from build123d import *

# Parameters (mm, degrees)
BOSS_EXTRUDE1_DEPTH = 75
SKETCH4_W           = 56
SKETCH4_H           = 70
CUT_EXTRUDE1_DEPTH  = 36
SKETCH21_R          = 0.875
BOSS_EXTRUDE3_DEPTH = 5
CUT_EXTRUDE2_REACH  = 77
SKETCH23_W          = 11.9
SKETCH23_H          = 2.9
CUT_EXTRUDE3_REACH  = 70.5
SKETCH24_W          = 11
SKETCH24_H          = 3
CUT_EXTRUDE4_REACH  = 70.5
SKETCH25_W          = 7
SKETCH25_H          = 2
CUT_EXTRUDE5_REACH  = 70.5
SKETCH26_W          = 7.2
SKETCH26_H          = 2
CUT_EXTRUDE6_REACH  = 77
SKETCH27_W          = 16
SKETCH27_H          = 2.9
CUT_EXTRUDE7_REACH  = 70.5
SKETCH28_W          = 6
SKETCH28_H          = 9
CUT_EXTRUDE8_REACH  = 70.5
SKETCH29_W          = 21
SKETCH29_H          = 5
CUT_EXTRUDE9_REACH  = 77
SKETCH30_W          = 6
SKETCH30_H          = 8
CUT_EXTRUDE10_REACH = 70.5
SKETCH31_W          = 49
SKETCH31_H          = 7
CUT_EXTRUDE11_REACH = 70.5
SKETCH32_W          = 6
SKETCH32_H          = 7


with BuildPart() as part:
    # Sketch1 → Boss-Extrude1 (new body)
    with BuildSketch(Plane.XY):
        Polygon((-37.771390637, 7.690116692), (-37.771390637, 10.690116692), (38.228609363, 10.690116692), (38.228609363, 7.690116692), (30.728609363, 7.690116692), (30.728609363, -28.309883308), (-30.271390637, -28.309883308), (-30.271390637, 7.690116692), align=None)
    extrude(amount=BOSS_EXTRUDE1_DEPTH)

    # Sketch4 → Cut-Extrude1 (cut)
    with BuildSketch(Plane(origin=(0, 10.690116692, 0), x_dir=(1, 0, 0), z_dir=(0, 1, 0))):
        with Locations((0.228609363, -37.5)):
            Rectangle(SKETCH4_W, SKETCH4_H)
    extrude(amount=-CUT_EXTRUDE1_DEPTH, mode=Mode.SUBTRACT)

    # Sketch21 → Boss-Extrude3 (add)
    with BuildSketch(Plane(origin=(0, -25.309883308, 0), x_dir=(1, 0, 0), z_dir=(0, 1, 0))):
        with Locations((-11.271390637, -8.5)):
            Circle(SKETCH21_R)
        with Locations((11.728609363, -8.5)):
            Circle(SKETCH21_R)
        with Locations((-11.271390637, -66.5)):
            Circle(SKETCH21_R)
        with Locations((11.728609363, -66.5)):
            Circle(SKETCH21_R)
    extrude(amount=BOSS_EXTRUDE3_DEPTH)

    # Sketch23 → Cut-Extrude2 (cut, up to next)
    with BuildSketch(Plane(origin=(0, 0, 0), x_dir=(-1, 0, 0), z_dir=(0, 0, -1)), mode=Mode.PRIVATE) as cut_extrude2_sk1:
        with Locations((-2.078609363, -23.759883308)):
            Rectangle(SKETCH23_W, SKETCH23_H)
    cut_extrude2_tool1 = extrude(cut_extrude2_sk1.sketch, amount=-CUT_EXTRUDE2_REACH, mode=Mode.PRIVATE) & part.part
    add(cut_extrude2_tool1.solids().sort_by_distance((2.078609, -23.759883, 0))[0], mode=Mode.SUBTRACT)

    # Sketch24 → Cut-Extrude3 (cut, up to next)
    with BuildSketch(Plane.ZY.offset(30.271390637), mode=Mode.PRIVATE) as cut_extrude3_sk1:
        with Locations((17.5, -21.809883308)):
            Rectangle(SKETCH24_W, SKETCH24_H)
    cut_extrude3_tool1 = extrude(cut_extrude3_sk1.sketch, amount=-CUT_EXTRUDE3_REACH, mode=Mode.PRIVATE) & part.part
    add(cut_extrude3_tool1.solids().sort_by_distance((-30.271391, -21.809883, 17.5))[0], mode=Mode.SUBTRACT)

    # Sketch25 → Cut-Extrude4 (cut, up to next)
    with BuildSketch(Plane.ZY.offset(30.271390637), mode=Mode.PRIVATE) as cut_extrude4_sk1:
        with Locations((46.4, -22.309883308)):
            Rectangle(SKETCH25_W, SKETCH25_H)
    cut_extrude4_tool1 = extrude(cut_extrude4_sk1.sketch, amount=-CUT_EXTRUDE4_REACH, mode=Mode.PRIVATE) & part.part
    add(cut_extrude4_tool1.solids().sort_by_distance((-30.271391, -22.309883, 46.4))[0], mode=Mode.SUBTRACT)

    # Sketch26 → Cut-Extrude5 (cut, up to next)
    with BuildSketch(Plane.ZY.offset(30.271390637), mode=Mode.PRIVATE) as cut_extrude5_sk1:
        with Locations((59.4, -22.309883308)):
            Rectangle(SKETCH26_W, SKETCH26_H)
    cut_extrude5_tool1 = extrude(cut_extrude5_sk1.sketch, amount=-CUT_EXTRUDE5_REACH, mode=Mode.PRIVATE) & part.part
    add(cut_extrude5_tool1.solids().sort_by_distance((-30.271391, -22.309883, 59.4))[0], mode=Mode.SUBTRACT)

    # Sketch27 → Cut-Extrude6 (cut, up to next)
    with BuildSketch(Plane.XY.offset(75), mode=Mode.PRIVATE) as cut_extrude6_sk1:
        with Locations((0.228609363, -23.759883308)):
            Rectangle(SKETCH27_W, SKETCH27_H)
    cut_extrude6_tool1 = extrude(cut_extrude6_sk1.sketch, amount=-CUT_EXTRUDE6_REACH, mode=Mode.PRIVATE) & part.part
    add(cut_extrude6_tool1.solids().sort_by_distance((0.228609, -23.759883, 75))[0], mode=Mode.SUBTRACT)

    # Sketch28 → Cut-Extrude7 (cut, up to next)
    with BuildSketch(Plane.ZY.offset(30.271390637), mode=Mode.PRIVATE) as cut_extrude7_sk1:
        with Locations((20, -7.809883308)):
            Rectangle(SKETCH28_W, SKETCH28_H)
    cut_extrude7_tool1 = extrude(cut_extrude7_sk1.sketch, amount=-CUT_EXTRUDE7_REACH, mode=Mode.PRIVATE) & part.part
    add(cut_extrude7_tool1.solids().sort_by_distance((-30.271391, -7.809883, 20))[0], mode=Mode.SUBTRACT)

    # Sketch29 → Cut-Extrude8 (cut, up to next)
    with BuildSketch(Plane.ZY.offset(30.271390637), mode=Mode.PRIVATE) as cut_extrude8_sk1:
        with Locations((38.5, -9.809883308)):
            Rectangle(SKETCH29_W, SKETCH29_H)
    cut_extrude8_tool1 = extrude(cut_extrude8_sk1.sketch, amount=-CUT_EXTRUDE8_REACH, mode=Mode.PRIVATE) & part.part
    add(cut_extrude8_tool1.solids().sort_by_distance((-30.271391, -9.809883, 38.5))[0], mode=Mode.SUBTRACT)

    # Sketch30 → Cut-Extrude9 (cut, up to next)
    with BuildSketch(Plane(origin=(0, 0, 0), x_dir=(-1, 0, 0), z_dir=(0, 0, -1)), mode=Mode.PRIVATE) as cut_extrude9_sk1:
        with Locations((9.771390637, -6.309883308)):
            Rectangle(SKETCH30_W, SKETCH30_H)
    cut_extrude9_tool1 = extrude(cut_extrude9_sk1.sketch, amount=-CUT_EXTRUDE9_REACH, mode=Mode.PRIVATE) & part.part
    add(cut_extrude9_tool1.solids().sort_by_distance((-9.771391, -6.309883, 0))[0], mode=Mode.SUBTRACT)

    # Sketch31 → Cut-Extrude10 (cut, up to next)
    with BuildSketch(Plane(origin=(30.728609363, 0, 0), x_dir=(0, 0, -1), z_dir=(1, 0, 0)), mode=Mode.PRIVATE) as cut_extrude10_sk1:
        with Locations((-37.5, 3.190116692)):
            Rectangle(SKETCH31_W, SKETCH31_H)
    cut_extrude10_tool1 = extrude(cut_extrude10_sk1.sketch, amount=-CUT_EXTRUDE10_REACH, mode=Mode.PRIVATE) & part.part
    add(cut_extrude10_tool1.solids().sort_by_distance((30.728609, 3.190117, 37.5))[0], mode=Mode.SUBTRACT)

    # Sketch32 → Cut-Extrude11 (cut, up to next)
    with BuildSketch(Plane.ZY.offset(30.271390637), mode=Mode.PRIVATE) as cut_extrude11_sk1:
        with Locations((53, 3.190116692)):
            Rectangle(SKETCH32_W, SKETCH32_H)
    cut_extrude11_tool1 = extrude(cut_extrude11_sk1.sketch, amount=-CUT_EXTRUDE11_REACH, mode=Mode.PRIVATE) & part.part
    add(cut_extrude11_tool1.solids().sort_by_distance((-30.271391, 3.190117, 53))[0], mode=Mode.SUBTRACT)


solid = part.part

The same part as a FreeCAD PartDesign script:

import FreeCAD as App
import Part
import Sketcher

V = App.Vector


def add_polygon(sketch, points):
    """Adds a closed chain of lines whose ends are joined by coincident constraints."""
    first, n = sketch.GeometryCount, len(points)
    for a, b in zip(points, points[1:] + points[:1]):
        sketch.addGeometry(Part.LineSegment(App.Vector(*a, 0), App.Vector(*b, 0)), False)
    for i in range(n):
        sketch.addConstraint(Sketcher.Constraint("Coincident", first + i, 2, first + (i + 1) % n, 1))

doc = App.newDocument("Part")
params = doc.addObject("Spreadsheet::Sheet", "Params")
for row, (alias, value) in enumerate([
    ("sketch1_width", "61 mm"),
    ("sketch1_width2", "76 mm"),
    ("sketch1_height", "3 mm"),
    ("sketch1_height2", "36 mm"),
    ("pad1_length", "75 mm"),
    ("sketch2_width", "56 mm"),
    ("sketch2_height", "70 mm"),
    ("pocket1_length", "36 mm"),
    ("sketch3_diameter", "1.75 mm"),
    ("pad2_length", "5 mm"),
    ("sketch4_width", "11.9 mm"),
    ("sketch4_height", "2.9 mm"),
    ("sketch5_width", "3 mm"),
    ("sketch5_height", "11 mm"),
    ("sketch6_width", "2 mm"),
    ("sketch6_height", "7 mm"),
    ("sketch7_width", "2 mm"),
    ("sketch7_height", "7.2 mm"),
    ("sketch8_width", "16 mm"),
    ("sketch8_height", "2.9 mm"),
    ("sketch9_width", "9 mm"),
    ("sketch9_height", "6 mm"),
    ("sketch10_width", "5 mm"),
    ("sketch10_height", "21 mm"),
    ("sketch11_width", "6 mm"),
    ("sketch11_height", "8 mm"),
    ("sketch12_width", "7 mm"),
    ("sketch12_height", "49 mm"),
    ("sketch13_width", "7 mm"),
    ("sketch13_height", "6 mm"),
], start=1):
    params.set(f"A{row}", alias)
    params.set(f"B{row}", "=" + value)
    params.setAlias(f"B{row}", alias)

body = doc.addObject("PartDesign::Body", "Body")

# Sketch on XY plane
sketch1 = body.newObject("Sketcher::SketchObject", "Sketch")
sketch1.AttachmentSupport = (doc.getObject("XY_Plane"), [""])
sketch1.MapMode = "FlatFace"
add_polygon(sketch1, [(-37.771391, 10.690117), (-37.771391, 7.690117), (-30.271391, 7.690117), (-30.271391, -28.309883), (30.728609, -28.309883), (30.728609, 7.690117), (38.228609, 7.690117), (38.228609, 10.690117)])  # lines 0-7
sketch1.addConstraint([
    Sketcher.Constraint("Vertical", 0),
    Sketcher.Constraint("Horizontal", 1),
    Sketcher.Constraint("Vertical", 2),
    Sketcher.Constraint("Horizontal", 3),
    Sketcher.Constraint("Vertical", 4),
    Sketcher.Constraint("Horizontal", 5),
    Sketcher.Constraint("Vertical", 6),
    Sketcher.Constraint("Horizontal", 7),
    Sketcher.Constraint("Horizontal", 1, 2, 4, 2),
    Sketcher.Constraint("Equal", 1, 5),
    Sketcher.Constraint("DistanceX", 3, 1, 3, 2, 61.0),
    Sketcher.Constraint("DistanceX", 7, 2, 7, 1, 76.0),
    Sketcher.Constraint("DistanceY", 0, 2, 0, 1, 3.0),
    Sketcher.Constraint("DistanceY", 2, 2, 2, 1, 36.0),
    Sketcher.Constraint("DistanceX", 0, 2, -1, 1, 37.771391),
    Sketcher.Constraint("DistanceY", -1, 1, 0, 2, 7.690117),
])
sketch1.setExpression("Constraints[18]", "Params.sketch1_width")
sketch1.setExpression("Constraints[19]", "Params.sketch1_width2")
sketch1.setExpression("Constraints[20]", "Params.sketch1_height")
sketch1.setExpression("Constraints[21]", "Params.sketch1_height2")
pad1 = body.newObject("PartDesign::Pad", "Pad")
pad1.Profile = sketch1
pad1.setExpression("Length", "Params.pad1_length")

# Sketch on XZ plane
sketch2 = body.newObject("Sketcher::SketchObject", "Sketch001")
sketch2.AttachmentSupport = (doc.getObject("XZ_Plane"), [""])
sketch2.MapMode = "FlatFace"
sketch2.AttachmentOffset = App.Placement(V(0, 0, -10.690117), App.Rotation())
add_polygon(sketch2, [(-27.771391, 2.5), (-27.771391, 72.5), (28.228609, 72.5), (28.228609, 2.5)])  # lines 0-3
sketch2.addConstraint([
    Sketcher.Constraint("Vertical", 0),
    Sketcher.Constraint("Horizontal", 1),
    Sketcher.Constraint("Vertical", 2),
    Sketcher.Constraint("Horizontal", 3),
    Sketcher.Constraint("DistanceX", 1, 1, 1, 2, 56.0),
    Sketcher.Constraint("DistanceY", 0, 1, 0, 2, 70.0),
    Sketcher.Constraint("DistanceY", -1, 1, 0, 2, 72.5),
    Sketcher.Constraint("DistanceX", 0, 2, -1, 1, 27.771391),
])
sketch2.setExpression("Constraints[8]", "Params.sketch2_width")
sketch2.setExpression("Constraints[9]", "Params.sketch2_height")
pocket1 = body.newObject("PartDesign::Pocket", "Pocket")
pocket1.Profile = sketch2
pocket1.setExpression("Length", "Params.pocket1_length")
pocket1.Reversed = True

# Sketch on XZ plane
sketch3 = body.newObject("Sketcher::SketchObject", "Sketch002")
sketch3.AttachmentSupport = (doc.getObject("XZ_Plane"), [""])
sketch3.MapMode = "FlatFace"
sketch3.AttachmentOffset = App.Placement(V(0, 0, 25.309883), App.Rotation())
sketch3.addGeometry([
    Part.Circle(V(-11.271391, 8.5, 0), V(0, 0, 1), 0.875),
    Part.Circle(V(11.728609, 8.5, 0), V(0, 0, 1), 0.875),
    Part.Circle(V(-11.271391, 66.5, 0), V(0, 0, 1), 0.875),
    Part.Circle(V(11.728609, 66.5, 0), V(0, 0, 1), 0.875),
], False)
sketch3.addConstraint([
    Sketcher.Constraint("Equal", 0, 1),
    Sketcher.Constraint("Equal", 1, 2),
    Sketcher.Constraint("Equal", 2, 3),
    Sketcher.Constraint("Horizontal", 0, 3, 1, 3),
    Sketcher.Constraint("Horizontal", 2, 3, 3, 3),
    Sketcher.Constraint("Vertical", 0, 3, 2, 3),
    Sketcher.Constraint("Vertical", 1, 3, 3, 3),
    Sketcher.Constraint("Diameter", 0, 1.75),
    Sketcher.Constraint("DistanceX", 0, 3, 1, 3, 23.0),
    Sketcher.Constraint("DistanceY", 0, 3, 2, 3, 58.0),
    Sketcher.Constraint("DistanceY", -1, 1, 0, 3, 8.5),
    Sketcher.Constraint("DistanceX", 0, 3, -1, 1, 11.271391),
])
sketch3.setExpression("Constraints[7]", "Params.sketch3_diameter")
pad2 = body.newObject("PartDesign::Pad", "Pad001")
pad2.Profile = sketch3
pad2.setExpression("Length", "Params.pad2_length")
pad2.Reversed = True

# Sketch on XY plane
sketch4 = body.newObject("Sketcher::SketchObject", "Sketch003")
sketch4.AttachmentSupport = (doc.getObject("XY_Plane"), [""])
sketch4.MapMode = "FlatFace"
add_polygon(sketch4, [(8.028609, -22.309883), (8.028609, -25.209883), (-3.871391, -25.209883), (-3.871391, -22.309883)])  # lines 0-3
sketch4.addConstraint([
    Sketcher.Constraint("Vertical", 0),
    Sketcher.Constraint("Horizontal", 1),
    Sketcher.Constraint("Vertical", 2),
    Sketcher.Constraint("Horizontal", 3),
    Sketcher.Constraint("DistanceX", 1, 2, 1, 1, 11.9),
    Sketcher.Constraint("DistanceY", 0, 2, 0, 1, 2.9),
    Sketcher.Constraint("DistanceX", -1, 1, 0, 2, 8.028609),
    Sketcher.Constraint("DistanceY", 0, 2, -1, 1, 25.209883),
])
sketch4.setExpression("Constraints[8]", "Params.sketch4_width")
sketch4.setExpression("Constraints[9]", "Params.sketch4_height")
pocket2 = body.newObject("PartDesign::Pocket", "Pocket001")
pocket2.Profile = sketch4
pocket2.Type = "UpToFirst"
pocket2.Reversed = True

# Sketch on YZ plane
sketch5 = body.newObject("Sketcher::SketchObject", "Sketch004")
sketch5.AttachmentSupport = (doc.getObject("YZ_Plane"), [""])
sketch5.MapMode = "FlatFace"
sketch5.AttachmentOffset = App.Placement(V(0, 0, -30.271391), App.Rotation())
add_polygon(sketch5, [(-20.309883, 12), (-23.309883, 12), (-23.309883, 23), (-20.309883, 23)])  # lines 0-3
sketch5.addConstraint([
    Sketcher.Constraint("Horizontal", 0),
    Sketcher.Constraint("Vertical", 1),
    Sketcher.Constraint("Horizontal", 2),
    Sketcher.Constraint("Vertical", 3),
    Sketcher.Constraint("DistanceX", 0, 2, 0, 1, 3.0),
    Sketcher.Constraint("DistanceY", 1, 1, 1, 2, 11.0),
    Sketcher.Constraint("DistanceY", -1, 1, 0, 2, 12.0),
    Sketcher.Constraint("DistanceX", 0, 2, -1, 1, 23.309883),
])
sketch5.setExpression("Constraints[8]", "Params.sketch5_width")
sketch5.setExpression("Constraints[9]", "Params.sketch5_height")
pocket3 = body.newObject("PartDesign::Pocket", "Pocket002")
pocket3.Profile = sketch5
pocket3.Type = "UpToFirst"
pocket3.Reversed = True

# Sketch on YZ plane
sketch6 = body.newObject("Sketcher::SketchObject", "Sketch005")
sketch6.AttachmentSupport = (doc.getObject("YZ_Plane"), [""])
sketch6.MapMode = "FlatFace"
sketch6.AttachmentOffset = App.Placement(V(0, 0, -30.271391), App.Rotation())
add_polygon(sketch6, [(-21.309883, 42.9), (-23.309883, 42.9), (-23.309883, 49.9), (-21.309883, 49.9)])  # lines 0-3
sketch6.addConstraint([
    Sketcher.Constraint("Horizontal", 0),
    Sketcher.Constraint("Vertical", 1),
    Sketcher.Constraint("Horizontal", 2),
    Sketcher.Constraint("Vertical", 3),
    Sketcher.Constraint("DistanceX", 0, 2, 0, 1, 2.0),
    Sketcher.Constraint("DistanceY", 1, 1, 1, 2, 7.0),
    Sketcher.Constraint("DistanceY", -1, 1, 0, 2, 42.9),
    Sketcher.Constraint("DistanceX", 0, 2, -1, 1, 23.309883),
])
sketch6.setExpression("Constraints[8]", "Params.sketch6_width")
sketch6.setExpression("Constraints[9]", "Params.sketch6_height")
pocket4 = body.newObject("PartDesign::Pocket", "Pocket003")
pocket4.Profile = sketch6
pocket4.Type = "UpToFirst"
pocket4.Reversed = True

# Sketch on YZ plane
sketch7 = body.newObject("Sketcher::SketchObject", "Sketch006")
sketch7.AttachmentSupport = (doc.getObject("YZ_Plane"), [""])
sketch7.MapMode = "FlatFace"
sketch7.AttachmentOffset = App.Placement(V(0, 0, -30.271391), App.Rotation())
add_polygon(sketch7, [(-21.309883, 55.8), (-23.309883, 55.8), (-23.309883, 63), (-21.309883, 63)])  # lines 0-3
sketch7.addConstraint([
    Sketcher.Constraint("Horizontal", 0),
    Sketcher.Constraint("Vertical", 1),
    Sketcher.Constraint("Horizontal", 2),
    Sketcher.Constraint("Vertical", 3),
    Sketcher.Constraint("DistanceX", 0, 2, 0, 1, 2.0),
    Sketcher.Constraint("DistanceY", 1, 1, 1, 2, 7.2),
    Sketcher.Constraint("DistanceY", -1, 1, 1, 2, 63.0),
    Sketcher.Constraint("DistanceX", 0, 2, -1, 1, 23.309883),
])
sketch7.setExpression("Constraints[8]", "Params.sketch7_width")
sketch7.setExpression("Constraints[9]", "Params.sketch7_height")
pocket5 = body.newObject("PartDesign::Pocket", "Pocket004")
pocket5.Profile = sketch7
pocket5.Type = "UpToFirst"
pocket5.Reversed = True

# Sketch on XY plane
sketch8 = body.newObject("Sketcher::SketchObject", "Sketch007")
sketch8.AttachmentSupport = (doc.getObject("XY_Plane"), [""])
sketch8.MapMode = "FlatFace"
sketch8.AttachmentOffset = App.Placement(V(0, 0, 75), App.Rotation())
add_polygon(sketch8, [(-7.771391, -22.309883), (-7.771391, -25.209883), (8.228609, -25.209883), (8.228609, -22.309883)])  # lines 0-3
sketch8.addConstraint([
    Sketcher.Constraint("Vertical", 0),
    Sketcher.Constraint("Horizontal", 1),
    Sketcher.Constraint("Vertical", 2),
    Sketcher.Constraint("Horizontal", 3),
    Sketcher.Constraint("DistanceX", 1, 1, 1, 2, 16.0),
    Sketcher.Constraint("DistanceY", 0, 2, 0, 1, 2.9),
    Sketcher.Constraint("DistanceX", 0, 2, -1, 1, 7.771391),
    Sketcher.Constraint("DistanceY", 0, 2, -1, 1, 25.209883),
])
sketch8.setExpression("Constraints[8]", "Params.sketch8_width")
sketch8.setExpression("Constraints[9]", "Params.sketch8_height")
pocket6 = body.newObject("PartDesign::Pocket", "Pocket005")
pocket6.Profile = sketch8
pocket6.Type = "UpToFirst"

# Sketch on YZ plane
sketch9 = body.newObject("Sketcher::SketchObject", "Sketch008")
sketch9.AttachmentSupport = (doc.getObject("YZ_Plane"), [""])
sketch9.MapMode = "FlatFace"
sketch9.AttachmentOffset = App.Placement(V(0, 0, -30.271391), App.Rotation())
add_polygon(sketch9, [(-3.309883, 17), (-12.309883, 17), (-12.309883, 23), (-3.309883, 23)])  # lines 0-3
sketch9.addConstraint([
    Sketcher.Constraint("Horizontal", 0),
    Sketcher.Constraint("Vertical", 1),
    Sketcher.Constraint("Horizontal", 2),
    Sketcher.Constraint("Vertical", 3),
    Sketcher.Constraint("DistanceX", 0, 2, 0, 1, 9.0),
    Sketcher.Constraint("DistanceY", 1, 1, 1, 2, 6.0),
    Sketcher.Constraint("DistanceY", -1, 1, 0, 2, 17.0),
    Sketcher.Constraint("DistanceX", 0, 2, -1, 1, 12.309883),
])
sketch9.setExpression("Constraints[8]", "Params.sketch9_width")
sketch9.setExpression("Constraints[9]", "Params.sketch9_height")
pocket7 = body.newObject("PartDesign::Pocket", "Pocket006")
pocket7.Profile = sketch9
pocket7.Type = "UpToFirst"
pocket7.Reversed = True

# Sketch on YZ plane
sketch10 = body.newObject("Sketcher::SketchObject", "Sketch009")
sketch10.AttachmentSupport = (doc.getObject("YZ_Plane"), [""])
sketch10.MapMode = "FlatFace"
sketch10.AttachmentOffset = App.Placement(V(0, 0, -30.271391), App.Rotation())
add_polygon(sketch10, [(-7.309883, 28), (-12.309883, 28), (-12.309883, 49), (-7.309883, 49)])  # lines 0-3
sketch10.addConstraint([
    Sketcher.Constraint("Horizontal", 0),
    Sketcher.Constraint("Vertical", 1),
    Sketcher.Constraint("Horizontal", 2),
    Sketcher.Constraint("Vertical", 3),
    Sketcher.Constraint("DistanceX", 0, 2, 0, 1, 5.0),
    Sketcher.Constraint("DistanceY", 1, 1, 1, 2, 21.0),
    Sketcher.Constraint("DistanceY", -1, 1, 0, 2, 28.0),
    Sketcher.Constraint("DistanceX", 0, 2, -1, 1, 12.309883),
])
sketch10.setExpression("Constraints[8]", "Params.sketch10_width")
sketch10.setExpression("Constraints[9]", "Params.sketch10_height")
pocket8 = body.newObject("PartDesign::Pocket", "Pocket007")
pocket8.Profile = sketch10
pocket8.Type = "UpToFirst"
pocket8.Reversed = True

# Sketch on XY plane
sketch11 = body.newObject("Sketcher::SketchObject", "Sketch010")
sketch11.AttachmentSupport = (doc.getObject("XY_Plane"), [""])
sketch11.MapMode = "FlatFace"
add_polygon(sketch11, [(-6.771391, -2.309883), (-6.771391, -10.309883), (-12.771391, -10.309883), (-12.771391, -2.309883)])  # lines 0-3
sketch11.addConstraint([
    Sketcher.Constraint("Vertical", 0),
    Sketcher.Constraint("Horizontal", 1),
    Sketcher.Constraint("Vertical", 2),
    Sketcher.Constraint("Horizontal", 3),
    Sketcher.Constraint("DistanceX", 1, 2, 1, 1, 6.0),
    Sketcher.Constraint("DistanceY", 0, 2, 0, 1, 8.0),
    Sketcher.Constraint("DistanceX", 0, 2, -1, 1, 6.771391),
    Sketcher.Constraint("DistanceY", 0, 2, -1, 1, 10.309883),
])
sketch11.setExpression("Constraints[8]", "Params.sketch11_width")
sketch11.setExpression("Constraints[9]", "Params.sketch11_height")
pocket9 = body.newObject("PartDesign::Pocket", "Pocket008")
pocket9.Profile = sketch11
pocket9.Type = "UpToFirst"
pocket9.Reversed = True

# Sketch on YZ plane
sketch12 = body.newObject("Sketcher::SketchObject", "Sketch011")
sketch12.AttachmentSupport = (doc.getObject("YZ_Plane"), [""])
sketch12.MapMode = "FlatFace"
sketch12.AttachmentOffset = App.Placement(V(0, 0, 30.728609), App.Rotation())
add_polygon(sketch12, [(6.690117, 62), (-0.309883, 62), (-0.309883, 13), (6.690117, 13)])  # lines 0-3
sketch12.addConstraint([
    Sketcher.Constraint("Horizontal", 0),
    Sketcher.Constraint("Vertical", 1),
    Sketcher.Constraint("Horizontal", 2),
    Sketcher.Constraint("Vertical", 3),
    Sketcher.Constraint("DistanceX", 0, 2, 0, 1, 7.0),
    Sketcher.Constraint("DistanceY", 1, 2, 1, 1, 49.0),
    Sketcher.Constraint("DistanceY", -1, 1, 0, 2, 62.0),
    Sketcher.Constraint("DistanceX", 0, 2, -1, 1, 0.309883),
])
sketch12.setExpression("Constraints[8]", "Params.sketch12_width")
sketch12.setExpression("Constraints[9]", "Params.sketch12_height")
pocket10 = body.newObject("PartDesign::Pocket", "Pocket009")
pocket10.Profile = sketch12
pocket10.Type = "UpToFirst"

# Sketch on YZ plane
sketch13 = body.newObject("Sketcher::SketchObject", "Sketch012")
sketch13.AttachmentSupport = (doc.getObject("YZ_Plane"), [""])
sketch13.MapMode = "FlatFace"
sketch13.AttachmentOffset = App.Placement(V(0, 0, -30.271391), App.Rotation())
add_polygon(sketch13, [(6.690117, 50), (-0.309883, 50), (-0.309883, 56), (6.690117, 56)])  # lines 0-3
sketch13.addConstraint([
    Sketcher.Constraint("Horizontal", 0),
    Sketcher.Constraint("Vertical", 1),
    Sketcher.Constraint("Horizontal", 2),
    Sketcher.Constraint("Vertical", 3),
    Sketcher.Constraint("DistanceX", 0, 2, 0, 1, 7.0),
    Sketcher.Constraint("DistanceY", 1, 1, 1, 2, 6.0),
    Sketcher.Constraint("DistanceY", -1, 1, 0, 2, 50.0),
    Sketcher.Constraint("DistanceX", 0, 2, -1, 1, 0.309883),
])
sketch13.setExpression("Constraints[8]", "Params.sketch13_width")
sketch13.setExpression("Constraints[9]", "Params.sketch13_height")
pocket11 = body.newObject("PartDesign::Pocket", "Pocket010")
pocket11.Profile = sketch13
pocket11.Type = "UpToFirst"
pocket11.Reversed = True

doc.recompute()
